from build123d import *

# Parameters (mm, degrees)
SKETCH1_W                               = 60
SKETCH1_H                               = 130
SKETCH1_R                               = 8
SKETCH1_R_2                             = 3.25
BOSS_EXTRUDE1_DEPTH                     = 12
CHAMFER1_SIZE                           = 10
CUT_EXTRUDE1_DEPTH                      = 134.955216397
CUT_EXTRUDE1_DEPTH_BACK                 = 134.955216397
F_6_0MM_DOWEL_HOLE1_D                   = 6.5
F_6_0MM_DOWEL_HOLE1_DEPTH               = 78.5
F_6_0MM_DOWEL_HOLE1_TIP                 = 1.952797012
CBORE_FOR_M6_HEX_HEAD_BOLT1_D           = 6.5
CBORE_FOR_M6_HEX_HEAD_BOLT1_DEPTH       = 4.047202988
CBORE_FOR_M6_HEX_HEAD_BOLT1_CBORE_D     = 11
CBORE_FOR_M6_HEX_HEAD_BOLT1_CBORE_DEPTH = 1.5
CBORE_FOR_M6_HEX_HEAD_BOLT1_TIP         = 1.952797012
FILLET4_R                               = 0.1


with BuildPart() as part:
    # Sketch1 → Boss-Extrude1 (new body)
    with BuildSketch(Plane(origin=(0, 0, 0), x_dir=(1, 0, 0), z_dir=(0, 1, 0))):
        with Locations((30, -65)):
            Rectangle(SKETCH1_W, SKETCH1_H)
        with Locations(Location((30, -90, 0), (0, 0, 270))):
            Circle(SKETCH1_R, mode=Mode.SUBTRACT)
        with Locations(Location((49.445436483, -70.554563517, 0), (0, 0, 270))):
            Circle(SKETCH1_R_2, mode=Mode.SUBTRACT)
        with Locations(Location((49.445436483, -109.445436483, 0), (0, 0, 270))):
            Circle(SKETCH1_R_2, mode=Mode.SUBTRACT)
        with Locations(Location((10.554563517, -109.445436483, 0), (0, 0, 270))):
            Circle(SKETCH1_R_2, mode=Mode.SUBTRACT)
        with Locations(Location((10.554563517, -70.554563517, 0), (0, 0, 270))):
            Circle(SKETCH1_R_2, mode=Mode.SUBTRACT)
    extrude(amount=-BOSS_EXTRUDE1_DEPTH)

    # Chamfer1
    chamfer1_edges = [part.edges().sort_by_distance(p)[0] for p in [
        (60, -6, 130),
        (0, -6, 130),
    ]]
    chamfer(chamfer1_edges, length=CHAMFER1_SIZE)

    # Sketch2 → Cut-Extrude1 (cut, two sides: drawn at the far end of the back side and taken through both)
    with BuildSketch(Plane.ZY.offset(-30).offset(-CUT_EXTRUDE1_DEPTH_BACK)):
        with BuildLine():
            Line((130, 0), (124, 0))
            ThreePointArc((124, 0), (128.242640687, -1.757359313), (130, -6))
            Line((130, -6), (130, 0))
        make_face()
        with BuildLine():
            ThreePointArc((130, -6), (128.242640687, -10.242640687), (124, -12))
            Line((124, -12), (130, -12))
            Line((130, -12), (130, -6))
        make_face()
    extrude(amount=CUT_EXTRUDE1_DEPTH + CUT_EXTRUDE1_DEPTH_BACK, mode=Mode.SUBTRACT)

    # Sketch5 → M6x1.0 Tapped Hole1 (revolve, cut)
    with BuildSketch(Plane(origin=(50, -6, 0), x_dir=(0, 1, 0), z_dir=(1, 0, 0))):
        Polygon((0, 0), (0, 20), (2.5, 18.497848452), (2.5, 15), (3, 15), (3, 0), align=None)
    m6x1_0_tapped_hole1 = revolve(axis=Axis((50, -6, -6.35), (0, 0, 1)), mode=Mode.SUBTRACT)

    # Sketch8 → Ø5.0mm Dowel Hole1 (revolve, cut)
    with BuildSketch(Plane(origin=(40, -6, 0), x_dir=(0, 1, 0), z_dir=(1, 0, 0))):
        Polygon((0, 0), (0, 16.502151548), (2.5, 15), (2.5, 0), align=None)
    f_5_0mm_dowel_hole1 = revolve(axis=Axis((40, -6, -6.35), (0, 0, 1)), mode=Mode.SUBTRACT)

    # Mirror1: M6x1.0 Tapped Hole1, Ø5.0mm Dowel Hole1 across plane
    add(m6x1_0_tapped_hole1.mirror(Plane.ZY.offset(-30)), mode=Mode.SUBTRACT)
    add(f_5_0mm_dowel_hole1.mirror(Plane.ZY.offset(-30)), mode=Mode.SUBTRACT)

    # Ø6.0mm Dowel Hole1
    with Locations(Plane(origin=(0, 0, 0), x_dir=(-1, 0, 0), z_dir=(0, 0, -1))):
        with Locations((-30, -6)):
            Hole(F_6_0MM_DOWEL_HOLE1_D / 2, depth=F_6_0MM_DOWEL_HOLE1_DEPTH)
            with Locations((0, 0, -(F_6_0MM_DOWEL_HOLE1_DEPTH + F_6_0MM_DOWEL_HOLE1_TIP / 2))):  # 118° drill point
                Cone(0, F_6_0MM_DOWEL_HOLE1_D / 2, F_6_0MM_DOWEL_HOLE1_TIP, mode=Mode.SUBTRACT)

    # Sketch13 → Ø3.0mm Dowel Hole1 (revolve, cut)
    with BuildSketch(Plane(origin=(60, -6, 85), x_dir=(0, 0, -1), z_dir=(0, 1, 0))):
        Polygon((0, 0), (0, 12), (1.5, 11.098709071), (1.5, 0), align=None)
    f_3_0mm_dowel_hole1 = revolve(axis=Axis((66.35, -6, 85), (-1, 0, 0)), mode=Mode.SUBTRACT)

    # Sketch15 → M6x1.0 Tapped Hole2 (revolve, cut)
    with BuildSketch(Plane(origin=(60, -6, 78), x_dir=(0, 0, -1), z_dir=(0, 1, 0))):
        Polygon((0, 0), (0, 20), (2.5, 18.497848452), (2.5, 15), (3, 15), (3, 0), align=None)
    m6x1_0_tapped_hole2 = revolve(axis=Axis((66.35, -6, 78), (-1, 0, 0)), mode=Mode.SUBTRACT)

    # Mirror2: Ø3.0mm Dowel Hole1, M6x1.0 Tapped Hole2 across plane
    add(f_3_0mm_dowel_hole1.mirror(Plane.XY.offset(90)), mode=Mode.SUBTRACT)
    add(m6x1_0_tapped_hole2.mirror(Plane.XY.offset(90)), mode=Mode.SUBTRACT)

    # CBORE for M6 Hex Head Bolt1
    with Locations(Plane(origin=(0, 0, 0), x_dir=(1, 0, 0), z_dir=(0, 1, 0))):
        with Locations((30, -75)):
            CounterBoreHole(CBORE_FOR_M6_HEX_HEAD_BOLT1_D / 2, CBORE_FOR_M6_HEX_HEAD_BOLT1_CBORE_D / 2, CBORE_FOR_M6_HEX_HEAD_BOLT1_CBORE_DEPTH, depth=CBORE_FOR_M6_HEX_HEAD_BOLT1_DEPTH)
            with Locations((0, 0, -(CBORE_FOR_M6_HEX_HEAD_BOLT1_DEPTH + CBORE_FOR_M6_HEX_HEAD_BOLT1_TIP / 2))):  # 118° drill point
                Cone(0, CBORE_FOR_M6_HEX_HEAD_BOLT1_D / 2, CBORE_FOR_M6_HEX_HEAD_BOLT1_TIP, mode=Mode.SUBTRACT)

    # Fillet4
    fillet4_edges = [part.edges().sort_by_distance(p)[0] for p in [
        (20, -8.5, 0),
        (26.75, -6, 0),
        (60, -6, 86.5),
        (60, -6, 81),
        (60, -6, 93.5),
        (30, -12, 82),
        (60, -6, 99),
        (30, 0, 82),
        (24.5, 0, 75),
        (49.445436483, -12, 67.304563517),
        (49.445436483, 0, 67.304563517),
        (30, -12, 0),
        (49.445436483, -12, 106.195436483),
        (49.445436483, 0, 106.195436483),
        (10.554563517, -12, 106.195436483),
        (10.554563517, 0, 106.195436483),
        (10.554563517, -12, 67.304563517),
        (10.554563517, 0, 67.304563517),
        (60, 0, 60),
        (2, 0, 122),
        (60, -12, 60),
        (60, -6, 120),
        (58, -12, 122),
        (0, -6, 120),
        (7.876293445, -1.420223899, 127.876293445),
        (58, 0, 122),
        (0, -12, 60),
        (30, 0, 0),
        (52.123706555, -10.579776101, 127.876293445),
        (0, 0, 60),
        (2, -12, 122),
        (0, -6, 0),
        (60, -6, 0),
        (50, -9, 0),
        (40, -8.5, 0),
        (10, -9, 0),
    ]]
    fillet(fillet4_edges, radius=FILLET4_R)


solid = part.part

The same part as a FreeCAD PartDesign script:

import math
import FreeCAD as App
import Part
import Sketcher
Q = App.Units.Quantity


def edges_at(feature, points):
    """Names of the edges that pass closest to the given points."""
    edges = feature.Shape.Edges
    near = lambda p: min(range(len(edges)), key=lambda i: edges[i].distToShape(Part.Vertex(*p))[0])
    return sorted({f"Edge{near(p) + 1}" for p in points})


def add_polygon(sketch, points):
    """Adds a closed chain of lines whose ends are joined by coincident constraints."""
    first, n = sketch.GeometryCount, len(points)
    for a, b in zip(points, points[1:] + points[:1]):
        sketch.addGeometry(Part.LineSegment(App.Vector(*a, 0), App.Vector(*b, 0)), False)
    for i in range(n):
        sketch.addConstraint(Sketcher.Constraint("Coincident", first + i, 2, first + (i + 1) % n, 1))

doc = App.newDocument("Part")
body = doc.addObject("PartDesign::Body", "Body")

sketch1 = body.newObject("Sketcher::SketchObject", "Sketch")
sketch1.AttachmentSupport = (doc.getObject("XZ_Plane"), [""])
sketch1.MapMode = "FlatFace"
add_polygon(sketch1, [(0, 0), (0, 130), (60, 130), (60, 0)])
sketch1.addGeometry(Part.Circle(App.Vector(10.554564, 109.445436, 0), App.Vector(0, 0, 1), 3.25), False)
sketch1.addGeometry(Part.Circle(App.Vector(49.445436, 109.445436, 0), App.Vector(0, 0, 1), 3.25), False)
sketch1.addGeometry(Part.Circle(App.Vector(10.554564, 70.554564, 0), App.Vector(0, 0, 1), 3.25), False)
sketch1.addGeometry(Part.Circle(App.Vector(30, 90, 0), App.Vector(0, 0, 1), 8), False)
sketch1.addGeometry(Part.Circle(App.Vector(49.445436, 70.554564, 0), App.Vector(0, 0, 1), 3.25), False)
sketch1.addConstraint(Sketcher.Constraint("Vertical", 0))
sketch1.addConstraint(Sketcher.Constraint("Horizontal", 1))
sketch1.addConstraint(Sketcher.Constraint("Vertical", 2))
sketch1.addConstraint(Sketcher.Constraint("Horizontal", 3))
sketch1.addConstraint(Sketcher.Constraint("Coincident", 3, 2, -1, 1))
sketch1.addConstraint(Sketcher.Constraint("Equal", 4, 5))
sketch1.addConstraint(Sketcher.Constraint("Equal", 5, 6))
sketch1.addConstraint(Sketcher.Constraint("Equal", 6, 8))
sketch1.addConstraint(Sketcher.Constraint("Horizontal", 4, 3, 5, 3))
sketch1.addConstraint(Sketcher.Constraint("Horizontal", 6, 3, 8, 3))
sketch1.addConstraint(Sketcher.Constraint("Vertical", 4, 3, 6, 3))
sketch1.addConstraint(Sketcher.Constraint("Vertical", 5, 3, 8, 3))
sketch1.addConstraint(Sketcher.Constraint("Diameter", 7, Q("16 mm")))
sketch1.addConstraint(Sketcher.Constraint("Diameter", 4, Q("6.5 mm")))
sketch1.addConstraint(Sketcher.Constraint("DistanceX", 1, 1, 1, 2, Q("60 mm")))
sketch1.addConstraint(Sketcher.Constraint("DistanceY", 0, 1, 0, 2, Q("130 mm")))
sketch1.addConstraint(Sketcher.Constraint("DistanceX", -1, 1, 7, 3, Q("30 mm")))
sketch1.addConstraint(Sketcher.Constraint("DistanceY", -1, 1, 7, 3, Q("90 mm")))
sketch1.addConstraint(Sketcher.Constraint("DistanceX", -1, 1, 4, 3, Q("10.554564 mm")))
sketch1.addConstraint(Sketcher.Constraint("DistanceY", -1, 1, 4, 3, Q("109.445436 mm")))
sketch1.addConstraint(Sketcher.Constraint("DistanceX", -1, 1, 5, 3, Q("49.445436 mm")))
sketch1.addConstraint(Sketcher.Constraint("DistanceY", -1, 1, 6, 3, Q("70.554564 mm")))
pad1 = body.newObject("PartDesign::Pad", "Pad")
pad1.Profile = sketch1
pad1.Length = 12
doc.recompute()

chamfer = body.newObject("PartDesign::Chamfer", "Chamfer")
chamfer.Base = (pad1, edges_at(pad1, [(60, -6, 130), (0, -6, 130)]))
chamfer.Size = 10

sketch2 = body.newObject("Sketcher::SketchObject", "Sketch001")
sketch2.AttachmentSupport = (doc.getObject("YZ_Plane"), [""])
sketch2.MapMode = "FlatFace"
sketch2.AttachmentOffset = App.Placement(App.Vector(0, 0, 30), App.Rotation())
sketch2.addGeometry(Part.LineSegment(App.Vector(0, 130, 0), App.Vector(0, 124, 0)), False)
sketch2.addGeometry(Part.ArcOfCircle(Part.Circle(App.Vector(-6, 124, 0), App.Vector(0, 0, 1), 6), math.radians(0), math.radians(90)), False)
sketch2.addGeometry(Part.LineSegment(App.Vector(-6, 130, 0), App.Vector(0, 130, 0)), False)
sketch2.addGeometry(Part.ArcOfCircle(Part.Circle(App.Vector(-6, 124, 0), App.Vector(0, 0, 1), 6), math.radians(90), math.radians(180)), False)
sketch2.addGeometry(Part.LineSegment(App.Vector(-12, 124, 0), App.Vector(-12, 130, 0)), False)
sketch2.addGeometry(Part.LineSegment(App.Vector(-12, 130, 0), App.Vector(-6, 130, 0)), False)
sketch2.addConstraint(Sketcher.Constraint("Tangent", 0, 2, 1, 1))
sketch2.addConstraint(Sketcher.Constraint("Tangent", 1, 2, 2, 1))
sketch2.addConstraint(Sketcher.Constraint("Coincident", 2, 2, 0, 1))
sketch2.addConstraint(Sketcher.Constraint("Tangent", 3, 2, 4, 1))
sketch2.addConstraint(Sketcher.Constraint("Coincident", 4, 2, 5, 1))
sketch2.addConstraint(Sketcher.Constraint("Tangent", 5, 2, 3, 1))
sketch2.addConstraint(Sketcher.Constraint("Vertical", 0))
sketch2.addConstraint(Sketcher.Constraint("Horizontal", 2))
sketch2.addConstraint(Sketcher.Constraint("Vertical", 4))
sketch2.addConstraint(Sketcher.Constraint("Horizontal", 5))
sketch2.addConstraint(Sketcher.Constraint("Coincident", 3, 3, 1, 3))
sketch2.addConstraint(Sketcher.Constraint("Equal", 1, 3))
sketch2.addConstraint(Sketcher.Constraint("PointOnObject", 0, 2, -2))
sketch2.addConstraint(Sketcher.Constraint("Radius", 1, Q("6 mm")))
sketch2.addConstraint(Sketcher.Constraint("DistanceY", -1, 1, 1, 3, Q("124 mm")))
pocket1 = body.newObject("PartDesign::Pocket", "Pocket")
pocket1.Profile = sketch2
pocket1.Type = "ThroughAll"
pocket1.Midplane = True

sketch3 = body.newObject("Sketcher::SketchObject", "Sketch002")
sketch3.AttachmentSupport = (doc.getObject("YZ_Plane"), [""])
sketch3.MapMode = "FlatFace"
sketch3.AttachmentOffset = App.Placement(App.Vector(0, 0, 50), App.Rotation())
add_polygon(sketch3, [(-6, 20), (-6, 0), (-3, 0), (-3, 15), (-3.5, 15), (-3.5, 18.497848)])
sketch3.addGeometry(Part.LineSegment(App.Vector(-6, 0, 0), App.Vector(-6, 20, 0)), True)
sketch3.addConstraint(Sketcher.Constraint("Vertical", 0))
sketch3.addConstraint(Sketcher.Constraint("Horizontal", 1))
sketch3.addConstraint(Sketcher.Constraint("Vertical", 2))
sketch3.addConstraint(Sketcher.Constraint("Horizontal", 3))
sketch3.addConstraint(Sketcher.Constraint("Vertical", 4))
sketch3.addConstraint(Sketcher.Constraint("Vertical", 6))
sketch3.addConstraint(Sketcher.Constraint("Coincident", 6, 1, 0, 2))
sketch3.addConstraint(Sketcher.Constraint("PointOnObject", 0, 2, -1))
sketch3.addConstraint(Sketcher.Constraint("Equal", 0, 6))
sketch3.addConstraint(Sketcher.Constraint("DistanceX", 1, 1, 1, 2, Q("3 mm")))
sketch3.addConstraint(Sketcher.Constraint("DistanceY", 0, 2, 0, 1, Q("20 mm")))
sketch3.addConstraint(Sketcher.Constraint("DistanceY", 2, 1, 2, 2, Q("15 mm")))
sketch3.addConstraint(Sketcher.Constraint("Angle", 5, Q("149 deg")))
sketch3.addConstraint(Sketcher.Constraint("DistanceX", 3, 2, 3, 1, Q("0.5 mm")))
sketch3.addConstraint(Sketcher.Constraint("DistanceX", 0, 2, -1, 1, Q("6 mm")))
groove = body.newObject("PartDesign::Groove", "Groove")
groove.Profile = sketch3
groove.ReferenceAxis = (sketch3, ["Axis0"])
groove.Angle = 360

sketch4 = body.newObject("Sketcher::SketchObject", "Sketch003")
sketch4.AttachmentSupport = (doc.getObject("YZ_Plane"), [""])
sketch4.MapMode = "FlatFace"
sketch4.AttachmentOffset = App.Placement(App.Vector(0, 0, 40), App.Rotation())
add_polygon(sketch4, [(-6, 16.502152), (-6, 0), (-3.5, 0), (-3.5, 15)])
sketch4.addGeometry(Part.LineSegment(App.Vector(-6, 0, 0), App.Vector(-6, 16.502152, 0)), True)
sketch4.addConstraint(Sketcher.Constraint("Vertical", 0))
sketch4.addConstraint(Sketcher.Constraint("Horizontal", 1))
sketch4.addConstraint(Sketcher.Constraint("Vertical", 2))
sketch4.addConstraint(Sketcher.Constraint("Vertical", 4))
sketch4.addConstraint(Sketcher.Constraint("Coincident", 4, 1, 0, 2))
sketch4.addConstraint(Sketcher.Constraint("PointOnObject", 0, 2, -1))
sketch4.addConstraint(Sketcher.Constraint("Equal", 0, 4))
sketch4.addConstraint(Sketcher.Constraint("DistanceY", 2, 1, 2, 2, Q("15 mm")))
sketch4.addConstraint(Sketcher.Constraint("Angle", 3, Q("149 deg")))
sketch4.addConstraint(Sketcher.Constraint("DistanceX", 1, 1, 1, 2, Q("2.5 mm")))
sketch4.addConstraint(Sketcher.Constraint("DistanceX", 0, 2, -1, 1, Q("6 mm")))
groove2 = body.newObject("PartDesign::Groove", "Groove001")
groove2.Profile = sketch4
groove2.ReferenceAxis = (sketch4, ["Axis0"])
groove2.Angle = 360
doc.recompute()

datumplane = body.newObject("PartDesign::Plane", "DatumPlane")
datumplane.AttachmentSupport = (doc.getObject("YZ_Plane"), [""])
datumplane.MapMode = "FlatFace"
datumplane.AttachmentOffset = App.Placement(App.Vector(0, 0, 30), App.Rotation())
mirrored = body.newObject("PartDesign::Mirrored", "Mirrored")
mirrored.Originals = [groove, groove2]
mirrored.MirrorPlane = (datumplane, [""])
body.Tip = mirrored

sketch5 = body.newObject("Sketcher::SketchObject", "Sketch004")
sketch5.AttachmentSupport = (doc.getObject("XY_Plane"), [""])
sketch5.MapMode = "FlatFace"
sketch5.addGeometry(Part.Circle(App.Vector(30, -6, 0), App.Vector(0, 0, 1), 3.25), False)
sketch5.addConstraint(Sketcher.Constraint("Diameter", 0, Q("6.5 mm")))
sketch5.addConstraint(Sketcher.Constraint("DistanceX", -1, 1, 0, 3, Q("30 mm")))
sketch5.addConstraint(Sketcher.Constraint("DistanceY", 0, 3, -1, 1, Q("6 mm")))
doc.recompute()
hole = body.newObject("PartDesign::Hole", "Hole")
hole.Profile = sketch5
hole.ThreadType = "None"
hole.Diameter = 6.5
hole.DepthType = "Dimension"
hole.Depth = 78.5
hole.DrillPoint = "Angled"
hole.DrillPointAngle = 118
hole.Reversed = True

sketch6 = body.newObject("Sketcher::SketchObject", "Sketch005")
sketch6.AttachmentSupport = (doc.getObject("XZ_Plane"), [""])
sketch6.MapMode = "FlatFace"
sketch6.AttachmentOffset = App.Placement(App.Vector(0, 0, 6), App.Rotation())
add_polygon(sketch6, [(48, 85), (60, 85), (60, 83.5), (48.901291, 83.5)])
sketch6.addGeometry(Part.LineSegment(App.Vector(60, 85, 0), App.Vector(48, 85, 0)), True)
sketch6.addConstraint(Sketcher.Constraint("Horizontal", 0))
sketch6.addConstraint(Sketcher.Constraint("Vertical", 1))
sketch6.addConstraint(Sketcher.Constraint("Horizontal", 2))
sketch6.addConstraint(Sketcher.Constraint("Horizontal", 4))
sketch6.addConstraint(Sketcher.Constraint("Coincident", 4, 1, 0, 2))
sketch6.addConstraint(Sketcher.Constraint("Equal", 0, 4))
sketch6.addConstraint(Sketcher.Constraint("DistanceX", 0, 1, 0, 2, Q("12 mm")))
sketch6.addConstraint(Sketcher.Constraint("Angle", 3, Q("121 deg")))
sketch6.addConstraint(Sketcher.Constraint("DistanceY", 1, 2, 1, 1, Q("1.5 mm")))
sketch6.addConstraint(Sketcher.Constraint("DistanceX", -1, 1, 0, 2, Q("60 mm")))
sketch6.addConstraint(Sketcher.Constraint("DistanceY", -1, 1, 0, 2, Q("85 mm")))
groove3 = body.newObject("PartDesign::Groove", "Groove002")
groove3.Profile = sketch6
groove3.ReferenceAxis = (sketch6, ["Axis0"])
groove3.Angle = 360

sketch7 = body.newObject("Sketcher::SketchObject", "Sketch006")
sketch7.AttachmentSupport = (doc.getObject("XZ_Plane"), [""])
sketch7.MapMode = "FlatFace"
sketch7.AttachmentOffset = App.Placement(App.Vector(0, 0, 6), App.Rotation())
add_polygon(sketch7, [(40, 78), (60, 78), (60, 75), (45, 75), (45, 75.5), (41.502152, 75.5)])
sketch7.addGeometry(Part.LineSegment(App.Vector(60, 78, 0), App.Vector(40, 78, 0)), True)
sketch7.addConstraint(Sketcher.Constraint("Horizontal", 0))
sketch7.addConstraint(Sketcher.Constraint("Vertical", 1))
sketch7.addConstraint(Sketcher.Constraint("Horizontal", 2))
sketch7.addConstraint(Sketcher.Constraint("Vertical", 3))
sketch7.addConstraint(Sketcher.Constraint("Horizontal", 4))
sketch7.addConstraint(Sketcher.Constraint("Horizontal", 6))
sketch7.addConstraint(Sketcher.Constraint("Coincident", 6, 1, 0, 2))
sketch7.addConstraint(Sketcher.Constraint("Equal", 0, 6))
sketch7.addConstraint(Sketcher.Constraint("DistanceX", 0, 1, 0, 2, Q("20 mm")))
sketch7.addConstraint(Sketcher.Constraint("DistanceX", 2, 2, 2, 1, Q("15 mm")))
sketch7.addConstraint(Sketcher.Constraint("DistanceY", 1, 2, 1, 1, Q("3 mm")))
sketch7.addConstraint(Sketcher.Constraint("Angle", 5, Q("121 deg")))
sketch7.addConstraint(Sketcher.Constraint("DistanceY", 3, 1, 3, 2, Q("0.5 mm")))
sketch7.addConstraint(Sketcher.Constraint("DistanceX", -1, 1, 0, 2, Q("60 mm")))
sketch7.addConstraint(Sketcher.Constraint("DistanceY", -1, 1, 0, 2, Q("78 mm")))
groove4 = body.newObject("PartDesign::Groove", "Groove003")
groove4.Profile = sketch7
groove4.ReferenceAxis = (sketch7, ["Axis0"])
groove4.Angle = 360
doc.recompute()

datumplane2 = body.newObject("PartDesign::Plane", "DatumPlane001")
datumplane2.AttachmentSupport = (doc.getObject("XY_Plane"), [""])
datumplane2.MapMode = "FlatFace"
datumplane2.AttachmentOffset = App.Placement(App.Vector(0, 0, 90), App.Rotation())
mirrored2 = body.newObject("PartDesign::Mirrored", "Mirrored001")
mirrored2.Originals = [groove3, groove4]
mirrored2.MirrorPlane = (datumplane2, [""])
body.Tip = mirrored2

sketch8 = body.newObject("Sketcher::SketchObject", "Sketch007")
sketch8.AttachmentSupport = (doc.getObject("XZ_Plane"), [""])
sketch8.MapMode = "FlatFace"
sketch8.addGeometry(Part.Circle(App.Vector(30, 75, 0), App.Vector(0, 0, 1), 3.25), False)
sketch8.addConstraint(Sketcher.Constraint("Diameter", 0, Q("6.5 mm")))
sketch8.addConstraint(Sketcher.Constraint("DistanceX", -1, 1, 0, 3, Q("30 mm")))
sketch8.addConstraint(Sketcher.Constraint("DistanceY", -1, 1, 0, 3, Q("75 mm")))
doc.recompute()
hole2 = body.newObject("PartDesign::Hole", "Hole001")
hole2.Profile = sketch8
hole2.ThreadType = "None"
hole2.Diameter = 6.5
hole2.DepthType = "Dimension"
hole2.Depth = 4.047203
hole2.DrillPoint = "Angled"
hole2.DrillPointAngle = 118
hole2.HoleCutType = "Counterbore"
hole2.HoleCutDiameter = 11
hole2.HoleCutDepth = 1.5
hole2.Reversed = True
doc.recompute()

fillet = body.newObject("PartDesign::Fillet", "Fillet")
fillet.Base = (hole2, edges_at(hole2, [
    (20, -8.5, 0),
    (26.75, -6, 0),
    (60, -6, 86.5),
    (60, -6, 81),
    (60, -6, 93.5),
    (30, -12, 82),
    (60, -6, 99),
    (30, 0, 82),
    (24.5, 0, 75),
    (49.445, -12, 67.305),
    (49.445, 0, 67.305),
    (30, -12, 0),
    (49.445, -12, 106.195),
    (49.445, 0, 106.195),
    (10.555, -12, 106.195),
    (10.555, 0, 106.195),
    (10.555, -12, 67.305),
    (10.555, 0, 67.305),
    (60, 0, 60),
    (2, 0, 122),
    (60, -12, 60),
    (60, -6, 120),
    (58, -12, 122),
    (0, -6, 120),
    (7.876, -1.42, 127.876),
    (58, 0, 122),
    (0, -12, 60),
    (30, 0, 0),
    (52.124, -10.58, 127.876),
    (0, 0, 60),
    (2, -12, 122),
    (0, -6, 0),
    (60, -6, 0),
    (50, -9, 0),
    (40, -8.5, 0),
    (10, -9, 0),
]))
fillet.Radius = 0.1

doc.recompute()
